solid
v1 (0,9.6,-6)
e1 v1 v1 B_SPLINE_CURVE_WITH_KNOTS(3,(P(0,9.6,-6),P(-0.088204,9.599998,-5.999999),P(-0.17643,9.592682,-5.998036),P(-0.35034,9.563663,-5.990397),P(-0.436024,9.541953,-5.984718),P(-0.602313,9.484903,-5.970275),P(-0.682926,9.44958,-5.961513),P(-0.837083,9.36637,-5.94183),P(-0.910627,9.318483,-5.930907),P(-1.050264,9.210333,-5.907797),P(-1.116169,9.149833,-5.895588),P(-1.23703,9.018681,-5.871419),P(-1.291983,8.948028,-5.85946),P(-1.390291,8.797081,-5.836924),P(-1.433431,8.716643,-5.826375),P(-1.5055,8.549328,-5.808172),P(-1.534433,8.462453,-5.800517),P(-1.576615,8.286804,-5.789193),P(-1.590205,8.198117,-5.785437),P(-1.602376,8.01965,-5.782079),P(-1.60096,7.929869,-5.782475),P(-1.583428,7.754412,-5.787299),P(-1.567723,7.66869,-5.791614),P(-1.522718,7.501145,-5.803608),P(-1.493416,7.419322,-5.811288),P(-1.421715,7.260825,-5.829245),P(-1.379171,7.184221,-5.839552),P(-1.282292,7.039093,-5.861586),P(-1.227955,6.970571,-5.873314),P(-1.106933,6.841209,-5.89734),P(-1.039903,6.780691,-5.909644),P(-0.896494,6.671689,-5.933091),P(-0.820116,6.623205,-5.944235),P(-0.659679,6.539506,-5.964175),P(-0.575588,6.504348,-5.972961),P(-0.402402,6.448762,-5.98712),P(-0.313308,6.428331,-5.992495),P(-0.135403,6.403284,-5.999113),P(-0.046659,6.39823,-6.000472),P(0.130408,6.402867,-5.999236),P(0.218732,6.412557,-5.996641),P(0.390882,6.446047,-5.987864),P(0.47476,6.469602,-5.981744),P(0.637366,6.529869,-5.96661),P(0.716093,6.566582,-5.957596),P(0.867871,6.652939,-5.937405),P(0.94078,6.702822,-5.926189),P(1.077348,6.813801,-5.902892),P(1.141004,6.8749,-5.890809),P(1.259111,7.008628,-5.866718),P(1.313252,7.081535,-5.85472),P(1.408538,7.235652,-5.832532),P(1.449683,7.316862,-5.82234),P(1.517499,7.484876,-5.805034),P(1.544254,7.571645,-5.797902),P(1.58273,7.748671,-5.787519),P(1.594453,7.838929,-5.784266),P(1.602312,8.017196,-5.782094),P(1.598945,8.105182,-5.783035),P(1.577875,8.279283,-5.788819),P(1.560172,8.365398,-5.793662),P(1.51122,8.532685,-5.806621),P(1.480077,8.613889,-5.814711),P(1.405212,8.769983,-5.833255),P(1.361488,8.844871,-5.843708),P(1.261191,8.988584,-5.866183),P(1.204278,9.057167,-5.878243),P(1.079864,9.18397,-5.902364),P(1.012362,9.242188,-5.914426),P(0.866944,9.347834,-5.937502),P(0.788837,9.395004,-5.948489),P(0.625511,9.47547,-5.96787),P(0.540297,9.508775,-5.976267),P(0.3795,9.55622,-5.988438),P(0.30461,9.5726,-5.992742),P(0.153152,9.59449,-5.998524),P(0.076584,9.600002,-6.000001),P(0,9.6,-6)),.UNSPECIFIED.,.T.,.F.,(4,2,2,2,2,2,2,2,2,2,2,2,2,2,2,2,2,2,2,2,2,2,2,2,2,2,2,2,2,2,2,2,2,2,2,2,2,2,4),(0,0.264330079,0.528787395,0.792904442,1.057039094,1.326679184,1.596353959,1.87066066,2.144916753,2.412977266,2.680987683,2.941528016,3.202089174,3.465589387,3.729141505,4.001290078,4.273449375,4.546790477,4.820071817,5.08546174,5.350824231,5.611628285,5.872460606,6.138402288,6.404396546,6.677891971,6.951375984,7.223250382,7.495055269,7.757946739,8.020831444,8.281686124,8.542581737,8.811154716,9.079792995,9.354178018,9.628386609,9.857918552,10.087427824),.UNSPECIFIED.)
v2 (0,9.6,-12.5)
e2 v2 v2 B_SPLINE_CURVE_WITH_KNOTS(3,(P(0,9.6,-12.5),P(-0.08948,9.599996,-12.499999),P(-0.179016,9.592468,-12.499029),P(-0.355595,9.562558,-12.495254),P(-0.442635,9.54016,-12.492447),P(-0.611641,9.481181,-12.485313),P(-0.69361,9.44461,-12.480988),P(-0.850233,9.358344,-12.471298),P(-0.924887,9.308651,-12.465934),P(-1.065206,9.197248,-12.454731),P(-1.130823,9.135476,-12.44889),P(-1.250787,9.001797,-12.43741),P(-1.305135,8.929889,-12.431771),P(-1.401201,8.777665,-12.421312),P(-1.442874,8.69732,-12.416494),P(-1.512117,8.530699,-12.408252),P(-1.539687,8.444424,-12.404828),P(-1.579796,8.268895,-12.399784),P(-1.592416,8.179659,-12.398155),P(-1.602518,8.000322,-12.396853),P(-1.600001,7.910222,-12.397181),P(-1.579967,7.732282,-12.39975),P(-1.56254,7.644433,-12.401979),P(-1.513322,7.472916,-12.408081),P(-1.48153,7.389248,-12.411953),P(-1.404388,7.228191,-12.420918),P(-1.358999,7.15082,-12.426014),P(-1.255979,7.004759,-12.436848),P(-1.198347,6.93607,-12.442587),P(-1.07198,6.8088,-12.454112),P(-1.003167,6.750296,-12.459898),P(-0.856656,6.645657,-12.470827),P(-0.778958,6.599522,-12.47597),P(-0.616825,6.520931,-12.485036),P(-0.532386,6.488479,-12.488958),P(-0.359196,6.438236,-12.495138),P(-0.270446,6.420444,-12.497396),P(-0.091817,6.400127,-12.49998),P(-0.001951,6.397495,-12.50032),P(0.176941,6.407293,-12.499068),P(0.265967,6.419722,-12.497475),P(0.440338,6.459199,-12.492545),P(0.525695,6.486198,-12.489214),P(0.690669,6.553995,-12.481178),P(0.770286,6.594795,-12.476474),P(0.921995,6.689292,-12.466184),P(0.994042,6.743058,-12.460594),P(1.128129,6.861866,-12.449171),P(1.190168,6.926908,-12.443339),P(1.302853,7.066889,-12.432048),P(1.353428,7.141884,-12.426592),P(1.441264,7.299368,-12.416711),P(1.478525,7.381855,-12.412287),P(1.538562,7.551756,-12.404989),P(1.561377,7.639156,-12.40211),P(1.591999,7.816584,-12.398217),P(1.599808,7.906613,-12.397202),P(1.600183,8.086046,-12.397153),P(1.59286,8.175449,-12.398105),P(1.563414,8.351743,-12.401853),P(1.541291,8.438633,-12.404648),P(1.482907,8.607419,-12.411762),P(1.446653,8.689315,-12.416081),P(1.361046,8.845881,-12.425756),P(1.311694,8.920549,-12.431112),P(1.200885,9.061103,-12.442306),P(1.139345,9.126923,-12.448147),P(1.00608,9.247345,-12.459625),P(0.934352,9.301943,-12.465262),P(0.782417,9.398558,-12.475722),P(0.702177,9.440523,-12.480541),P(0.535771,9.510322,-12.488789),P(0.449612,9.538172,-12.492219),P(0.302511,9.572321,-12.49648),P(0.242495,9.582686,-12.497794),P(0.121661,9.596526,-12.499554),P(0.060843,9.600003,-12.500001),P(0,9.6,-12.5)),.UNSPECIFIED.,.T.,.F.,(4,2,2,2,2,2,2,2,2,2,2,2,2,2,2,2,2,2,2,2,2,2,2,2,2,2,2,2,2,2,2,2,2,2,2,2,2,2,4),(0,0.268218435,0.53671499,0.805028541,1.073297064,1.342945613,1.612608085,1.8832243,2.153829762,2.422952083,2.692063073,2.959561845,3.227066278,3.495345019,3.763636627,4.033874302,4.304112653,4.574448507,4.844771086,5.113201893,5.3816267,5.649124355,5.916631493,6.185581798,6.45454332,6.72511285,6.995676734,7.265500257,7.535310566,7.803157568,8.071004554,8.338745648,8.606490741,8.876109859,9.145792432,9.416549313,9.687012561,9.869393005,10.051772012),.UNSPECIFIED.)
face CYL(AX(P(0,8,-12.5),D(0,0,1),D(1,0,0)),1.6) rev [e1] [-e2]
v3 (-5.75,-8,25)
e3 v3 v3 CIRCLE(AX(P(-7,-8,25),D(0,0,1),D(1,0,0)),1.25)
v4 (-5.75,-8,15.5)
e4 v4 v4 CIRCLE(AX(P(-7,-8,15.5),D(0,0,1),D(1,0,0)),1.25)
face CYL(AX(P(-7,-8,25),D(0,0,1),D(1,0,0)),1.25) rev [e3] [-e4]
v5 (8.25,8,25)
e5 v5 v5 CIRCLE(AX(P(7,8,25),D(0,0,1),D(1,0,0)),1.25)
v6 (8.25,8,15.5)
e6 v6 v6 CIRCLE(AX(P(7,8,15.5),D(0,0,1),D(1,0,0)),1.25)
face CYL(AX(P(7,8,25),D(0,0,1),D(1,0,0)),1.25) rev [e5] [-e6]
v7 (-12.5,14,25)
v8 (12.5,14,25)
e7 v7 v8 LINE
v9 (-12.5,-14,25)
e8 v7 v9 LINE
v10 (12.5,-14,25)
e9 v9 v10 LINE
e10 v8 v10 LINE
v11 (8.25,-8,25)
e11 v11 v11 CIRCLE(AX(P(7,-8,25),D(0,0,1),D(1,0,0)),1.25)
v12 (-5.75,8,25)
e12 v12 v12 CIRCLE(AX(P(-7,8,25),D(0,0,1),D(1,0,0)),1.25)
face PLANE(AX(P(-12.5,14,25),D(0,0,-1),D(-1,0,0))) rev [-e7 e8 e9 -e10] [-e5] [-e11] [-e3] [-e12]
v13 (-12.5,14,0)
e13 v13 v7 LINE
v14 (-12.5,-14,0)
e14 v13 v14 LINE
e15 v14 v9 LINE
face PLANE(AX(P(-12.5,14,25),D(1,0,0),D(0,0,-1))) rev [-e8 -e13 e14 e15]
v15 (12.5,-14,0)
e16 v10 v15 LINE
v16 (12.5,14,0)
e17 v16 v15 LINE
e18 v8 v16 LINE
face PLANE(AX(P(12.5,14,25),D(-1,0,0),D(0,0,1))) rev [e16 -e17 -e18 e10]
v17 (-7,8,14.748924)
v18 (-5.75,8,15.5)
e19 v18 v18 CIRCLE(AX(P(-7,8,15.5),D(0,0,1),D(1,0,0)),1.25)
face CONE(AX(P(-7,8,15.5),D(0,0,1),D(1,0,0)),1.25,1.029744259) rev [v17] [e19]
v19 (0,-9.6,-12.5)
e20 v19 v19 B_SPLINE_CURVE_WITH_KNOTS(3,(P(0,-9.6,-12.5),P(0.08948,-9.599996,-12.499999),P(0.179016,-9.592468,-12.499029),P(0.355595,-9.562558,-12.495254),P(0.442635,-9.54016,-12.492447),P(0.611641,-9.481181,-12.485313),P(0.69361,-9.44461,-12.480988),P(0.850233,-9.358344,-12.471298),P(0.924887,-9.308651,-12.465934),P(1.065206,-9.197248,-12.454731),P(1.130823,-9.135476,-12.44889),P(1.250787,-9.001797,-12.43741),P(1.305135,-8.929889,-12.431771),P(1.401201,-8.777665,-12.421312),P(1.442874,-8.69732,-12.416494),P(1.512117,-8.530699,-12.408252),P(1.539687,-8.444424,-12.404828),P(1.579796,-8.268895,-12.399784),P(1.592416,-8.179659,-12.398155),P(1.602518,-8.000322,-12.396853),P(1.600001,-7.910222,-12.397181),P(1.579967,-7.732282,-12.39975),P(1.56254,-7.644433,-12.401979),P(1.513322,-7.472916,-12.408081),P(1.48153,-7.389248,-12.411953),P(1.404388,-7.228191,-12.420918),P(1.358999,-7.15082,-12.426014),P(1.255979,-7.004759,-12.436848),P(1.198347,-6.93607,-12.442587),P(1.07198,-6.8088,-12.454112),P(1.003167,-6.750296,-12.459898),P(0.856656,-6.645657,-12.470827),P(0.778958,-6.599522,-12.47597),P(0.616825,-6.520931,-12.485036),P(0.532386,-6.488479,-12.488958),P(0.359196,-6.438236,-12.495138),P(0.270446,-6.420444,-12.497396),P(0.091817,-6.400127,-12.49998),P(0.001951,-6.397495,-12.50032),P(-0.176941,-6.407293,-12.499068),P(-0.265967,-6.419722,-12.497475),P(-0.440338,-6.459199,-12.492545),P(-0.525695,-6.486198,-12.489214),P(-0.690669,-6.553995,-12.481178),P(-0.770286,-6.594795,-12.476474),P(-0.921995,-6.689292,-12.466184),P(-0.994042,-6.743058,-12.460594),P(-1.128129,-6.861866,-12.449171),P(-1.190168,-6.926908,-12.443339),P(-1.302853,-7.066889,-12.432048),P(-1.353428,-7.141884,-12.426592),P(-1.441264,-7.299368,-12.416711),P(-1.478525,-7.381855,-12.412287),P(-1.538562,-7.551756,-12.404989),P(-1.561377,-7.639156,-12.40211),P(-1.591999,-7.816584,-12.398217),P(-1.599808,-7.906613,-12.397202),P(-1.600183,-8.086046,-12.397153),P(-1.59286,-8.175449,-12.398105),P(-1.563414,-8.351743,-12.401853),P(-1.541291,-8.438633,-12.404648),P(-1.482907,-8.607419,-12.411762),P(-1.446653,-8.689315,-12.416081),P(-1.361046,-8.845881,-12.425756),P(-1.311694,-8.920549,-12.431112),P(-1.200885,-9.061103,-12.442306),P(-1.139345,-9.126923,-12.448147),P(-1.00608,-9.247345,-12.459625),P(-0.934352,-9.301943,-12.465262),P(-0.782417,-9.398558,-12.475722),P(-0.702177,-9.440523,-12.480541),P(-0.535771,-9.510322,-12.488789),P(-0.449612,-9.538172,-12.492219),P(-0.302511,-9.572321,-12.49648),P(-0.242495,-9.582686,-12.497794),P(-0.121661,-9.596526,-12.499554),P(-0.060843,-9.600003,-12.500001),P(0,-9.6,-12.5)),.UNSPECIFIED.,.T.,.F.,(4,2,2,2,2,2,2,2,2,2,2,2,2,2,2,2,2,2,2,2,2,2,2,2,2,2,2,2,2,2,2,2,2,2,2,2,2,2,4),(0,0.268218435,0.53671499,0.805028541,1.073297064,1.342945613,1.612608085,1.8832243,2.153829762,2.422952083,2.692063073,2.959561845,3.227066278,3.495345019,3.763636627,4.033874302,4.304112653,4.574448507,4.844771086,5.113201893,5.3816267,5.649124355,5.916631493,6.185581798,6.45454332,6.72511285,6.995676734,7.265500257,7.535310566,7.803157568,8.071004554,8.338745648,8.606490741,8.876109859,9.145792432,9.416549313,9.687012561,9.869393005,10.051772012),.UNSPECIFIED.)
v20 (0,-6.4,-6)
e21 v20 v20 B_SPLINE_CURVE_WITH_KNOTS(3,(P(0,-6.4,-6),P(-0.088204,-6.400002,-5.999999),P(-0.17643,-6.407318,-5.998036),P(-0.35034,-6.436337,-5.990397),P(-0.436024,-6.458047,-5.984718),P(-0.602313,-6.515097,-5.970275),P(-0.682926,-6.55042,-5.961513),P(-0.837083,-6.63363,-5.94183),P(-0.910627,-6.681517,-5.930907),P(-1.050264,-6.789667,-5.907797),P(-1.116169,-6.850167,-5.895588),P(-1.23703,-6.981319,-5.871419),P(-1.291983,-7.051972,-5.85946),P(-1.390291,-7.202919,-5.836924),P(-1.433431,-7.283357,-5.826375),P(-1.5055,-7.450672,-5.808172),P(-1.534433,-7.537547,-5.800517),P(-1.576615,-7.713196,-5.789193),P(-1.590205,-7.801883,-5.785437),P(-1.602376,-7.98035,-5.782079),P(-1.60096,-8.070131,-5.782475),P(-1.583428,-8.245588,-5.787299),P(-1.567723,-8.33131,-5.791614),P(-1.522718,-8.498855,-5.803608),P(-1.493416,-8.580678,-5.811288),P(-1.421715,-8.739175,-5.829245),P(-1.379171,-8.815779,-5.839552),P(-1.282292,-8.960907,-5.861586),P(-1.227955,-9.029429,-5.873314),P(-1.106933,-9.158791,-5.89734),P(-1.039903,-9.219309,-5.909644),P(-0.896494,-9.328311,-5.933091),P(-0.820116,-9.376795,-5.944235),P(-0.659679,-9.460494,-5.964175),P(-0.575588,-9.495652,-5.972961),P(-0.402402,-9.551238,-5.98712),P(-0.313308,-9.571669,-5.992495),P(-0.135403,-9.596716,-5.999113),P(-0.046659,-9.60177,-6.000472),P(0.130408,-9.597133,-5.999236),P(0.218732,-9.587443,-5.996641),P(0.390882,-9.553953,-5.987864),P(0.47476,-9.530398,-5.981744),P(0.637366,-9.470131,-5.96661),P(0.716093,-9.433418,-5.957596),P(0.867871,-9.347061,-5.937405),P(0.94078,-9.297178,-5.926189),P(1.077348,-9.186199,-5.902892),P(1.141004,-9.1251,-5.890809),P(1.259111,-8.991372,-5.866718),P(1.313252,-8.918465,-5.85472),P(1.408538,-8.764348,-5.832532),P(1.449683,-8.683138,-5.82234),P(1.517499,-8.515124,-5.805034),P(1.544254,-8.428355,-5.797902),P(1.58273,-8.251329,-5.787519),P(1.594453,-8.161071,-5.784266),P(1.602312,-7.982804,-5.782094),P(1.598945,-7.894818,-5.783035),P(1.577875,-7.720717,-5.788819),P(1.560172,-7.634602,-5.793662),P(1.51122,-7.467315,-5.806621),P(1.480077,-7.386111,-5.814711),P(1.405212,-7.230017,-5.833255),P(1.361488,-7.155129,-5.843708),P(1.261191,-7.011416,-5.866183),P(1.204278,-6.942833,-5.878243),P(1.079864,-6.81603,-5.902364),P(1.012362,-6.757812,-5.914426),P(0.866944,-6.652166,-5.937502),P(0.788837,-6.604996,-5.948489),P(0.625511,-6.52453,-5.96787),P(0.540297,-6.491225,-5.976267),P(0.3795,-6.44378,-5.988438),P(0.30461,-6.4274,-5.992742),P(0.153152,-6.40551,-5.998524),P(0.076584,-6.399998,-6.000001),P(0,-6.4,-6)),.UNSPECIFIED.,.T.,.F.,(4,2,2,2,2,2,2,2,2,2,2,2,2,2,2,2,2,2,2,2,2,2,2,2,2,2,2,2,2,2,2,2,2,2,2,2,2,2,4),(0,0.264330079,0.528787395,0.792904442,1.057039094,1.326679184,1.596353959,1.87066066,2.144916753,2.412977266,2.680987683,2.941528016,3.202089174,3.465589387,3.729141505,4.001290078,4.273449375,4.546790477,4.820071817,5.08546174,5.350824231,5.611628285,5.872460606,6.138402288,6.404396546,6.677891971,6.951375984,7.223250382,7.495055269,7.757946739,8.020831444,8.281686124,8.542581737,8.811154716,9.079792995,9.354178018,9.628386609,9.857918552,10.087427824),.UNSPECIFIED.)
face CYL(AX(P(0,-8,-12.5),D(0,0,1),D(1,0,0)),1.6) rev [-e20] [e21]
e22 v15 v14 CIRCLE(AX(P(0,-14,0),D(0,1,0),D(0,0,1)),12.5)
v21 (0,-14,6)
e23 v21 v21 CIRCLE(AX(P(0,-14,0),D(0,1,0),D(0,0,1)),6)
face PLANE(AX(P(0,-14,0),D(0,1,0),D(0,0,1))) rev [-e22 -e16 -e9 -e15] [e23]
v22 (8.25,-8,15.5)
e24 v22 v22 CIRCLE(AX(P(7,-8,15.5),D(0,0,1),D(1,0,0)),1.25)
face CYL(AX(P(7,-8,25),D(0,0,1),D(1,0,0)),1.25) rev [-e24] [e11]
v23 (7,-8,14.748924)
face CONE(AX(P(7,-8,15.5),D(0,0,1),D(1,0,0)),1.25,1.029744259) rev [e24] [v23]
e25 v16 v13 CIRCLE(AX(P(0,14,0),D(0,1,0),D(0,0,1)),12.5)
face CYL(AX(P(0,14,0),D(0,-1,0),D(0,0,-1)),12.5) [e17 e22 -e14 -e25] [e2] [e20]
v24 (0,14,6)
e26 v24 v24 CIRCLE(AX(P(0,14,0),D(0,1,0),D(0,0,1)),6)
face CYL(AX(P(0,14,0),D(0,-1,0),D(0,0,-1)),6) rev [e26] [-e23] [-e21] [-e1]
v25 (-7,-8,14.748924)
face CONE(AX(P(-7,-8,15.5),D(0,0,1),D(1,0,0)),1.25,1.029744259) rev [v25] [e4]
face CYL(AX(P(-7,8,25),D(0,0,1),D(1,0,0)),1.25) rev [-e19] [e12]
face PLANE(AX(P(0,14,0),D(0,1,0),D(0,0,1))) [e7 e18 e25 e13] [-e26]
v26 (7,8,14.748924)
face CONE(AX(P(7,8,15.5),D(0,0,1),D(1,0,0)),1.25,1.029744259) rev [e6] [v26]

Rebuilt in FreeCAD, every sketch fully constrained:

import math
import FreeCAD as App
import Part
import Sketcher
Q = App.Units.Quantity

doc = App.newDocument("Part")
body = doc.addObject("PartDesign::Body", "Body")

# Sketch on XZ plane
sketch1 = body.newObject("Sketcher::SketchObject", "Sketch")
sketch1.AttachmentSupport = (doc.getObject("XZ_Plane"), [""])
sketch1.MapMode = "FlatFace"
sketch1.addGeometry([
    Part.LineSegment(App.Vector(-12, 25, 0), App.Vector(12, 25, 0)),  # 0
    Part.LineSegment(App.Vector(12, 25, 0), App.Vector(12, 0, 0)),  # 1
    Part.ArcOfCircle(Part.Circle(App.Vector(0, 0, 0), App.Vector(0, 0, 1), 12), math.radians(180), math.radians(360)),  # 2
    Part.LineSegment(App.Vector(-12, 0, 0), App.Vector(-12, 25, 0)),  # 3
    Part.Circle(App.Vector(0, 0, 0), App.Vector(0, 0, 1), 6),  # 4
], False)
sketch1.addConstraint([
    Sketcher.Constraint("Coincident", 0, 2, 1, 1),
    Sketcher.Constraint("Tangent", 1, 2, 2, 2),
    Sketcher.Constraint("Tangent", 2, 1, 3, 1),
    Sketcher.Constraint("Coincident", 3, 2, 0, 1),
    Sketcher.Constraint("Horizontal", 0),
    Sketcher.Constraint("Vertical", 1),
    Sketcher.Constraint("Vertical", 3),
    Sketcher.Constraint("Coincident", 2, 3, -1, 1),
    Sketcher.Constraint("Coincident", 4, 3, -1, 1),
    Sketcher.Constraint("Equal", 0, 1),
    Sketcher.Constraint("Diameter", 4, Q("12 mm")),
    Sketcher.Constraint("Radius", 2, Q("12.5 mm")),
])
pad1 = body.newObject("PartDesign::Pad", "Pad")
pad1.Profile = sketch1
pad1.Length = 28
pad1.Midplane = True

# Sketch on XY plane
sketch2 = body.newObject("Sketcher::SketchObject", "Sketch001")
sketch2.AttachmentSupport = (doc.getObject("XY_Plane"), [""])
sketch2.MapMode = "FlatFace"
sketch2.addGeometry([
    Part.Circle(App.Vector(0, -8, 0), App.Vector(0, 0, 1), 1.6),
    Part.Circle(App.Vector(0, 8, 0), App.Vector(0, 0, 1), 1.6),
], False)
sketch2.addConstraint([
    Sketcher.Constraint("Equal", 0, 1),
    Sketcher.Constraint("Symmetric", 0, 3, 1, 3, -1, 1),
    Sketcher.Constraint("PointOnObject", 0, 3, -2),
    Sketcher.Constraint("Diameter", 0, Q("3.2 mm")),
    Sketcher.Constraint("DistanceY", 0, 3, -1, 1, Q("8 mm")),
])
pocket1 = body.newObject("PartDesign::Pocket", "Pocket")
pocket1.Profile = sketch2
pocket1.Type = "ThroughAll"

# Sketch on XY plane
sketch3 = body.newObject("Sketcher::SketchObject", "Sketch002")
sketch3.AttachmentSupport = (doc.getObject("XY_Plane"), [""])
sketch3.MapMode = "FlatFace"
sketch3.AttachmentOffset = App.Placement(App.Vector(0, 0, 25), App.Rotation())
sketch3.addGeometry([
    Part.Circle(App.Vector(-7, -8, 0), App.Vector(0, 0, 1), 1.2),
    Part.Circle(App.Vector(7, -8, 0), App.Vector(0, 0, 1), 1.2),
    Part.Circle(App.Vector(7, 8, 0), App.Vector(0, 0, 1), 1.2),
    Part.Circle(App.Vector(-7, 8, 0), App.Vector(0, 0, 1), 1.2),
], False)
sketch3.addConstraint([
    Sketcher.Constraint("Equal", 0, 1),
    Sketcher.Constraint("Equal", 1, 2),
    Sketcher.Constraint("Equal", 2, 3),
    Sketcher.Constraint("Symmetric", 0, 3, 2, 3, -1, 1),
    Sketcher.Constraint("Symmetric", 1, 3, 3, 3, -1, 1),
    Sketcher.Constraint("Symmetric", 0, 3, 1, 3, -2),
    Sketcher.Constraint("Diameter", 0, Q("2.5 mm")),
    Sketcher.Constraint("DistanceX", 0, 3, -1, 1, Q("7 mm")),
    Sketcher.Constraint("DistanceY", 0, 3, -1, 1, Q("8 mm")),
])
doc.recompute()
hole = body.newObject("PartDesign::Hole", "Hole")
hole.Profile = sketch3
hole.ThreadType = "None"
hole.Diameter = 2.5
hole.DepthType = "Dimension"
hole.Depth = 9.5
hole.DrillPoint = "Angled"
hole.DrillPointAngle = 118

doc.recompute()
